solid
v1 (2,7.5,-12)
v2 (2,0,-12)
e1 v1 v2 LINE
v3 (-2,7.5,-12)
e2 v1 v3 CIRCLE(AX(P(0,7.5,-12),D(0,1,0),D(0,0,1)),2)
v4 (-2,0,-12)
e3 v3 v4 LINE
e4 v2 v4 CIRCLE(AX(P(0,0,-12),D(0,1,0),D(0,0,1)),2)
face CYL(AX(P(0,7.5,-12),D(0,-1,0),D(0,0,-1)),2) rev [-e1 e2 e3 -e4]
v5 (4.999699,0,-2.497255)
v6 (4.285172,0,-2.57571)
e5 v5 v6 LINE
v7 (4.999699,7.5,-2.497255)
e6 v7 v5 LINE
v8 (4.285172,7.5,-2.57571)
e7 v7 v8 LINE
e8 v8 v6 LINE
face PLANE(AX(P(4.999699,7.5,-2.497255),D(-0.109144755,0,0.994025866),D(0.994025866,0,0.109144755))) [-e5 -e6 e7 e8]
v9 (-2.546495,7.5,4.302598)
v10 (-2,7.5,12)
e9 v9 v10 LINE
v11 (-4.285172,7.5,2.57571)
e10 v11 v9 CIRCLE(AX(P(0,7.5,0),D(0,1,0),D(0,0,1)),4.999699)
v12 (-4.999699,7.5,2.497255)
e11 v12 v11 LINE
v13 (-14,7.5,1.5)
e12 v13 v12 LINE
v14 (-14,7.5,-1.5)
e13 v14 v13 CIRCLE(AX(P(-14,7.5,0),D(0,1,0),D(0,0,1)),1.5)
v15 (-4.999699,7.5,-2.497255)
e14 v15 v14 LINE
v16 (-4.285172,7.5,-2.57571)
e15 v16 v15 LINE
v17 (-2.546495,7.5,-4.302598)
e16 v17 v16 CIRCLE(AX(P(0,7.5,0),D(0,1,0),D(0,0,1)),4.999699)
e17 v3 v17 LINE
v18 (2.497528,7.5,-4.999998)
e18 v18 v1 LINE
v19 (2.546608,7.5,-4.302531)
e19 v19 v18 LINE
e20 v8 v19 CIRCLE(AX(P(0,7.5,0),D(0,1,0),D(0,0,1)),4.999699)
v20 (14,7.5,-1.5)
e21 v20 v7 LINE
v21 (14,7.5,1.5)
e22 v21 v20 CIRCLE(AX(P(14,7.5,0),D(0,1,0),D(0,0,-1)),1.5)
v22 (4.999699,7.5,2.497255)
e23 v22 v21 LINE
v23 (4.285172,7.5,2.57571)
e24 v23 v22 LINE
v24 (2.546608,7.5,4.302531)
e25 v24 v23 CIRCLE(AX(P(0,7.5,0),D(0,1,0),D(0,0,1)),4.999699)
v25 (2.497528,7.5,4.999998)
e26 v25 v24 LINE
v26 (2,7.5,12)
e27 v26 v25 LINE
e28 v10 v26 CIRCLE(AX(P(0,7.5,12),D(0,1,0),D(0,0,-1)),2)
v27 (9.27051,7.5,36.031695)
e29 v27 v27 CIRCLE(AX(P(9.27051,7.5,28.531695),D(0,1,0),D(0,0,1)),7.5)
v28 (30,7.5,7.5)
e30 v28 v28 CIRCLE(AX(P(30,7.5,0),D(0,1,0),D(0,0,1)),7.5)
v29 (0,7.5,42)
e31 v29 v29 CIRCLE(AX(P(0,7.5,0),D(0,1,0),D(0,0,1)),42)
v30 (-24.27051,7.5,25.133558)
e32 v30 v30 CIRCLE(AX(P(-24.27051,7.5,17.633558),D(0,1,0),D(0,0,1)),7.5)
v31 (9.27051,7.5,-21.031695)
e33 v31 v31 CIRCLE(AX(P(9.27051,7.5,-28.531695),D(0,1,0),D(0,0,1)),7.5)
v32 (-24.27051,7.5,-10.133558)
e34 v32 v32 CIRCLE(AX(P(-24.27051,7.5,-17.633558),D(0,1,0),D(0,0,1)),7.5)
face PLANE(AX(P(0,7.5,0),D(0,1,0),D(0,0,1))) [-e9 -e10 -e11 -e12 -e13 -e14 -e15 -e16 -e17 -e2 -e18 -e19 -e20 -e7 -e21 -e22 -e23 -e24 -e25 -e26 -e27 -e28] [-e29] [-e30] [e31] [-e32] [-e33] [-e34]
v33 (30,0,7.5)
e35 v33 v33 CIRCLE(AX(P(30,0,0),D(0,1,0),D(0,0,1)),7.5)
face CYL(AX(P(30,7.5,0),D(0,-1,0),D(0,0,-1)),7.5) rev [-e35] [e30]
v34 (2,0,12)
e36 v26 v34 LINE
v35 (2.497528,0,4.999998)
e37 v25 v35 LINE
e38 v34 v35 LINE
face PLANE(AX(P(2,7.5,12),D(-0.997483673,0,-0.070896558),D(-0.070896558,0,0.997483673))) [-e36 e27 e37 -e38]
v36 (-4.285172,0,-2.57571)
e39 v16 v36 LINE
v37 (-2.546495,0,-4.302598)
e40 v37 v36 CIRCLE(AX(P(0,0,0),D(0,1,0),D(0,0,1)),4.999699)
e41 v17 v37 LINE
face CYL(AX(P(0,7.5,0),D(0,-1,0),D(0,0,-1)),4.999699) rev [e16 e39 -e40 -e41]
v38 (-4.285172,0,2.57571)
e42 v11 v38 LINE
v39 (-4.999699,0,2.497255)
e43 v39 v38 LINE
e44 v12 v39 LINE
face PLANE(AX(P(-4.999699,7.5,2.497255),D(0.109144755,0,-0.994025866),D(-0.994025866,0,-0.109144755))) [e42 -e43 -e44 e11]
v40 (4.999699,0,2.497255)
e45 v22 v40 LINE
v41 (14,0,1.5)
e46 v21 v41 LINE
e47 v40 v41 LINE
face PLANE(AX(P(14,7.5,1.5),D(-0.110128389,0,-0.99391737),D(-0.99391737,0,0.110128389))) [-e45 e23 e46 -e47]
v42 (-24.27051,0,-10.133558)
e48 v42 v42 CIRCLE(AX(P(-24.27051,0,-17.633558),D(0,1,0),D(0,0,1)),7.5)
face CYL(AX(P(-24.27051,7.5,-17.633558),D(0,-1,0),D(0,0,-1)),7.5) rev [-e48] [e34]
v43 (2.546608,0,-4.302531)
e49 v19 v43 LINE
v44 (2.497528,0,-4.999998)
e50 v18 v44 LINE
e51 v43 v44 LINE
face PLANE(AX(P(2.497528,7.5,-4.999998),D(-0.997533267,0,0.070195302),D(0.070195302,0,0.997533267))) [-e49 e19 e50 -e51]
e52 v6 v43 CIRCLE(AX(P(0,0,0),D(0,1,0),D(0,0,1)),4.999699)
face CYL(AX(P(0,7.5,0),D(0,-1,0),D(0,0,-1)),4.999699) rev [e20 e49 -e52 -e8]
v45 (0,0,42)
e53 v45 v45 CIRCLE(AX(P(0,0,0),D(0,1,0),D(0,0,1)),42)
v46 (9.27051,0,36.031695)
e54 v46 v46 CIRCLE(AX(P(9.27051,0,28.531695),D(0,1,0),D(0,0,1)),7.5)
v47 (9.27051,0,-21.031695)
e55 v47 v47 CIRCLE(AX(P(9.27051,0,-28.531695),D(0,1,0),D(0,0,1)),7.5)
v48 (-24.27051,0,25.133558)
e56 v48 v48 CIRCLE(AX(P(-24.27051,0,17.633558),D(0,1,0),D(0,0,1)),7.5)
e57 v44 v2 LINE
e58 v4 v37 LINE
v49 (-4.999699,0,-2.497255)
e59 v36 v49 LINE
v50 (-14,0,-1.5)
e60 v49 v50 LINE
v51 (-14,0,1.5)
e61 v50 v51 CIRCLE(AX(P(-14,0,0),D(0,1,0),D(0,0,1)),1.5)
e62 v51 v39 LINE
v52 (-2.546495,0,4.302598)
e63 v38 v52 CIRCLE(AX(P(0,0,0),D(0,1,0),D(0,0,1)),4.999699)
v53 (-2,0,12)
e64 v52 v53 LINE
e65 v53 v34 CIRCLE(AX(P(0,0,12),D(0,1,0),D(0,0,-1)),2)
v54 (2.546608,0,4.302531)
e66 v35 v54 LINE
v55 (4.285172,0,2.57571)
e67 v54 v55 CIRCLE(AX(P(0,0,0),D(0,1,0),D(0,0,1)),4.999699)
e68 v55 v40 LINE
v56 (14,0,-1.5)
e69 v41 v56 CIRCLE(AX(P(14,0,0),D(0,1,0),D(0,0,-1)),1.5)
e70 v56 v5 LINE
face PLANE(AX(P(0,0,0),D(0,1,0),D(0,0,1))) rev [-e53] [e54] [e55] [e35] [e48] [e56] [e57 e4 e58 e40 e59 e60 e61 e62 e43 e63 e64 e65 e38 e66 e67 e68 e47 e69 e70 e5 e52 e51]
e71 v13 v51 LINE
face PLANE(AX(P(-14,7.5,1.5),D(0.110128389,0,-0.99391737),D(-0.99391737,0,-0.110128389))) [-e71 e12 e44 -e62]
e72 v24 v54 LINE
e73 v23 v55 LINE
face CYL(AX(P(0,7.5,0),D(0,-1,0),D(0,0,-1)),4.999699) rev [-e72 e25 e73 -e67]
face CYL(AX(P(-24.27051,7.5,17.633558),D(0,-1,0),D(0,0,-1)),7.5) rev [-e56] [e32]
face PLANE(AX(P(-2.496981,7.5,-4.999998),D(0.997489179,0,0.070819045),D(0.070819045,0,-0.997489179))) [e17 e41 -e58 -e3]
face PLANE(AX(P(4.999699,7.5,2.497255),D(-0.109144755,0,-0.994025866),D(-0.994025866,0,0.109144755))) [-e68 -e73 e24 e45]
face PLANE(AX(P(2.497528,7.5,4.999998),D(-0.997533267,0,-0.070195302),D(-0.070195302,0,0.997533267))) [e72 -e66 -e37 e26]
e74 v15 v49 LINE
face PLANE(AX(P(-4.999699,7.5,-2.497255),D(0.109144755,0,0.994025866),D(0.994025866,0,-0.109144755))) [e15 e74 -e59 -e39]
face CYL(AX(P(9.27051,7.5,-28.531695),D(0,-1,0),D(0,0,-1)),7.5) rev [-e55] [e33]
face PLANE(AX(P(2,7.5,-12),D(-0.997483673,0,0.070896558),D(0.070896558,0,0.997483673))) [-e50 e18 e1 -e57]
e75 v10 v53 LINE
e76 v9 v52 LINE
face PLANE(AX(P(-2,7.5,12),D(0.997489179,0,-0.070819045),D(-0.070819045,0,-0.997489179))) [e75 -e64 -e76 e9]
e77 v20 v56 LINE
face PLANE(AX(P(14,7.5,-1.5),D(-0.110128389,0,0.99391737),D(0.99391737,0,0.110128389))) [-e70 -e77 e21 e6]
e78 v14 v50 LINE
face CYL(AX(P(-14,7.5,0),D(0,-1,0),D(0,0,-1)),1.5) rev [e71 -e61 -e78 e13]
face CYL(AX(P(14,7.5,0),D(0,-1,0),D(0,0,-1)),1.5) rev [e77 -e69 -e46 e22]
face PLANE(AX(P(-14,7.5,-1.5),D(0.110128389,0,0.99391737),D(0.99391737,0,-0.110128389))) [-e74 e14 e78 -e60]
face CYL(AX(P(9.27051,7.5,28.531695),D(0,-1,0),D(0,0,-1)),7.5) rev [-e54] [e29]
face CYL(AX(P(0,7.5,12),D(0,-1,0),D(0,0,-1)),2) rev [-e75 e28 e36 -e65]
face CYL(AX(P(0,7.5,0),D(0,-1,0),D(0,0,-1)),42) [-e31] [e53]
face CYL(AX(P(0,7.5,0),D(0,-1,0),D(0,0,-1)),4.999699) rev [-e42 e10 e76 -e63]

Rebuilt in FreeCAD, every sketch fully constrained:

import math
import FreeCAD as App
import Part
import Sketcher
from FreeCAD import Vector
Q = App.Units.Quantity

doc = App.newDocument("Part")
body = doc.addObject("PartDesign::Body", "Body")

# Sketch on XZ plane
sketch1 = doc.addObject("Sketcher::SketchObject", "Sketch")
body.addObject(sketch1)
sketch1.AttachmentSupport = (doc.XZ_Plane, [""])
sketch1.MapMode = "FlatFace"
sketch1.addGeometry([
    Part.Circle(Vector(0, 0, 0), Vector(0, 0, 1), 42),  # 0
    Part.Circle(Vector(-24.3, -17.6, 0), Vector(0, 0, 1), 7.5),  # 1
    Part.Circle(Vector(-24.3, 17.6, 0), Vector(0, 0, 1), 7.5),  # 2
    Part.LineSegment(Vector(14, 1.5, 0), Vector(5, 2.5, 0)),  # 3
    Part.LineSegment(Vector(5, 2.5, 0), Vector(4.3, 2.6, 0)),  # 4
    Part.ArcOfCircle(Part.Circle(Vector(0, 0, 0), Vector(0, 0, 1), 5), math.radians(31), math.radians(59)),  # 5
    Part.LineSegment(Vector(2.5, 4.3, 0), Vector(2.5, 5, 0)),  # 6
    Part.LineSegment(Vector(2.5, 5, 0), Vector(2, 12, 0)),  # 7
    Part.ArcOfCircle(Part.Circle(Vector(0, 12, 0), Vector(0, 0, 1), 2), math.radians(0), math.radians(180)),  # 8
    Part.LineSegment(Vector(-2, 12, 0), Vector(-2.5, 5, 0)),  # 9
    Part.LineSegment(Vector(-2.5, 5, 0), Vector(-2.5, 4.3, 0)),  # 10
    Part.ArcOfCircle(Part.Circle(Vector(0, 0, 0), Vector(0, 0, 1), 5), math.radians(121), math.radians(149)),  # 11
    Part.LineSegment(Vector(-4.3, 2.6, 0), Vector(-5, 2.5, 0)),  # 12
    Part.LineSegment(Vector(-5, 2.5, 0), Vector(-14, 1.5, 0)),  # 13
    Part.ArcOfCircle(Part.Circle(Vector(-14, 0, 0), Vector(0, 0, 1), 1.5), math.radians(90), math.radians(270)),  # 14
    Part.LineSegment(Vector(-14, -1.5, 0), Vector(-5, -2.5, 0)),  # 15
    Part.LineSegment(Vector(-5, -2.5, 0), Vector(-4.3, -2.6, 0)),  # 16
    Part.ArcOfCircle(Part.Circle(Vector(0, 0, 0), Vector(0, 0, 1), 5), math.radians(-149), math.radians(-121)),  # 17
    Part.LineSegment(Vector(-2.5, -4.3, 0), Vector(-2.5, -5, 0)),  # 18
    Part.LineSegment(Vector(-2.5, -5, 0), Vector(-2, -12, 0)),  # 19
    Part.ArcOfCircle(Part.Circle(Vector(0, -12, 0), Vector(0, 0, 1), 2), math.radians(180), math.radians(360)),  # 20
    Part.LineSegment(Vector(2, -12, 0), Vector(2.5, -5, 0)),  # 21
    Part.LineSegment(Vector(2.5, -5, 0), Vector(2.5, -4.3, 0)),  # 22
    Part.ArcOfCircle(Part.Circle(Vector(0, 0, 0), Vector(0, 0, 1), 5), math.radians(-59), math.radians(-31)),  # 23
    Part.LineSegment(Vector(4.3, -2.6, 0), Vector(5, -2.5, 0)),  # 24
    Part.LineSegment(Vector(5, -2.5, 0), Vector(14, -1.5, 0)),  # 25
    Part.ArcOfCircle(Part.Circle(Vector(14, 0, 0), Vector(0, 0, 1), 1.5), math.radians(-90), math.radians(90)),  # 26
    Part.Circle(Vector(9.3, -28.5, 0), Vector(0, 0, 1), 7.5),  # 27
    Part.Circle(Vector(30, 0, 0), Vector(0, 0, 1), 7.5),  # 28
    Part.Circle(Vector(9.3, 28.5, 0), Vector(0, 0, 1), 7.5),  # 29
], False)
sketch1.addConstraint([
    Sketcher.Constraint("Coincident", 3, 2, 4, 1),
    Sketcher.Constraint("Coincident", 4, 2, 5, 1),
    Sketcher.Constraint("Coincident", 5, 2, 6, 1),
    Sketcher.Constraint("Coincident", 6, 2, 7, 1),
    Sketcher.Constraint("Coincident", 7, 2, 8, 1),
    Sketcher.Constraint("Coincident", 8, 2, 9, 1),
    Sketcher.Constraint("Coincident", 9, 2, 10, 1),
    Sketcher.Constraint("Coincident", 10, 2, 11, 1),
    Sketcher.Constraint("Coincident", 11, 2, 12, 1),
    Sketcher.Constraint("Coincident", 12, 2, 13, 1),
    Sketcher.Constraint("Coincident", 13, 2, 14, 1),
    Sketcher.Constraint("Coincident", 14, 2, 15, 1),
    Sketcher.Constraint("Coincident", 15, 2, 16, 1),
    Sketcher.Constraint("Coincident", 16, 2, 17, 1),
    Sketcher.Constraint("Coincident", 17, 2, 18, 1),
    Sketcher.Constraint("Coincident", 18, 2, 19, 1),
    Sketcher.Constraint("Coincident", 19, 2, 20, 1),
    Sketcher.Constraint("Coincident", 20, 2, 21, 1),
    Sketcher.Constraint("Coincident", 21, 2, 22, 1),
    Sketcher.Constraint("Coincident", 22, 2, 23, 1),
    Sketcher.Constraint("Coincident", 23, 2, 24, 1),
    Sketcher.Constraint("Coincident", 24, 2, 25, 1),
    Sketcher.Constraint("Coincident", 25, 2, 26, 1),
    Sketcher.Constraint("Coincident", 26, 2, 3, 1),
    Sketcher.Constraint("Coincident", 0, 3, -1, 1),
    Sketcher.Constraint("Coincident", 5, 3, -1, 1),
    Sketcher.Constraint("Coincident", 11, 3, -1, 1),
    Sketcher.Constraint("Coincident", 17, 3, -1, 1),
    Sketcher.Constraint("Coincident", 23, 3, -1, 1),
    Sketcher.Constraint("Equal", 1, 2),
    Sketcher.Constraint("Equal", 5, 11),
    Sketcher.Constraint("Equal", 11, 17),
    Sketcher.Constraint("Equal", 8, 20),
    Sketcher.Constraint("Equal", 17, 23),
    Sketcher.Constraint("Equal", 14, 26),
    Sketcher.Constraint("Equal", 2, 27),
    Sketcher.Constraint("Equal", 27, 28),
    Sketcher.Constraint("Equal", 28, 29),
    Sketcher.Constraint("Symmetric", 8, 3, 20, 3, -1, 1),
    Sketcher.Constraint("Symmetric", 14, 3, 26, 3, -1, 1),
    Sketcher.Constraint("Symmetric", 3, 2, 15, 2, -1, 1),
    Sketcher.Constraint("Symmetric", 12, 2, 24, 2, -1, 1),
    Sketcher.Constraint("Symmetric", 7, 2, 8, 2, -2),
    Sketcher.Constraint("Symmetric", 3, 2, 12, 2, -2),
    Sketcher.Constraint("Symmetric", 14, 2, 25, 2, -2),
    Sketcher.Constraint("Symmetric", 1, 3, 2, 3, -1),
    Sketcher.Constraint("Symmetric", 27, 3, 29, 3, -1),
    Sketcher.Constraint("Symmetric", 9, 2, 18, 2, -1),
    Sketcher.Constraint("Symmetric", 6, 2, 21, 2, -1),
    Sketcher.Constraint("PointOnObject", 28, 3, -1),
    Sketcher.Constraint("Parallel", 9, 10),
    Sketcher.Constraint("Parallel", 3, 15),
    Sketcher.Constraint("Parallel", 4, 16),
    Sketcher.Constraint("Parallel", 18, 19),
    Sketcher.Constraint("Parallel", 12, 24),
    Sketcher.Constraint("Parallel", 13, 25),
    Sketcher.Constraint("Horizontal", 8, 3, 7, 2),
    Sketcher.Constraint("Horizontal", 6, 2, 9, 2),
    Sketcher.Constraint("Horizontal", 4, 2, 11, 2),
    Sketcher.Constraint("Horizontal", 20, 3, 19, 2),
    Sketcher.Constraint("Horizontal", 19, 2, 20, 2),
    Sketcher.Constraint("Vertical", 14, 3, 13, 2),
    Sketcher.Constraint("Vertical", 5, 2, 22, 2),
    Sketcher.Constraint("Diameter", 0, Q("84 mm")),
    Sketcher.Constraint("Diameter", 1, Q("15 mm")),
    Sketcher.Constraint("Radius", 8, Q("2 mm")),
    Sketcher.Constraint("Radius", 14, Q("1.5 mm")),
    Sketcher.Constraint("DistanceY", -1, 1, 8, 3, Q("12 mm")),
    Sketcher.Constraint("DistanceX", 14, 3, -1, 1, Q("14 mm")),
    Sketcher.Constraint("DistanceX", -1, 1, 28, 3, Q("30 mm")),
    Sketcher.Constraint("DistanceY", -1, 1, 6, 2, Q("4.999998 mm")),
    Sketcher.Constraint("Radius", 5, Q("4.999699 mm")),
    Sketcher.Constraint("DistanceX", -1, 1, 3, 2, Q("4.999699 mm")),
    Sketcher.Constraint("DistanceY", 10, 2, 9, 2, Q("0.6974 mm")),
    Sketcher.Constraint("Distance", 4, Q("0.71882 mm")),
    Sketcher.Constraint("Distance", 6, Q("0.699192 mm")),
    Sketcher.Constraint("Distance", 7, Q("7.017661 mm")),
    Sketcher.Constraint("DistanceX", 1, 3, -1, 1, Q("24.27051 mm")),
    Sketcher.Constraint("DistanceX", -1, 1, 27, 3, Q("9.27051 mm")),
    Sketcher.Constraint("DistanceY", -1, 1, 4, 2, Q("2.57571 mm")),
    Sketcher.Constraint("DistanceY", 1, 3, -1, 1, Q("17.633558 mm")),
    Sketcher.Constraint("DistanceY", 27, 3, -1, 1, Q("28.531695 mm")),
])
pad1 = doc.addObject("PartDesign::Pad", "Pad")
body.addObject(pad1)
pad1.Profile = sketch1
pad1.Length = 7.5
pad1.Reversed = True

doc.recompute()
